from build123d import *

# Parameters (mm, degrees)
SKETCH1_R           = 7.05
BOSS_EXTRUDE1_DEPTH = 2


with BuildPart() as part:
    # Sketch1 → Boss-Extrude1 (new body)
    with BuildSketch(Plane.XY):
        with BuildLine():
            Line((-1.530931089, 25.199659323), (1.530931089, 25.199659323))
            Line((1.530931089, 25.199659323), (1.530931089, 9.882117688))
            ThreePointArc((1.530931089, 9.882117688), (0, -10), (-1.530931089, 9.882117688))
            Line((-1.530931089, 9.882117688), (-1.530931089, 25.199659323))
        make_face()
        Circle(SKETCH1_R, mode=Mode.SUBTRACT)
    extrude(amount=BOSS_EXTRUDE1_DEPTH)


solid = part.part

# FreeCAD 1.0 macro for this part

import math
import FreeCAD as App
import Part
import Sketcher
from FreeCAD import Vector
Q = App.Units.Quantity

doc = App.newDocument("Part")
body = doc.addObject("PartDesign::Body", "Body")

# Sketch on XY plane
sketch1 = body.newObject("Sketcher::SketchObject", "Sketch")
sketch1.AttachmentSupport = (doc.getObject("XY_Plane"), [""])
sketch1.MapMode = "FlatFace"
sketch1.addGeometry(Part.LineSegment(Vector(1.5, 25.2, 0), Vector(-1.5, 25.2, 0)), False)
sketch1.addGeometry(Part.LineSegment(Vector(-1.5, 25.2, 0), Vector(-1.5, 9.9, 0)), False)
sketch1.addGeometry(Part.ArcOfCircle(Part.Circle(Vector(0, 0, 0), Vector(0, 0, 1), 10), math.radians(99), math.radians(441)), False)
sketch1.addGeometry(Part.LineSegment(Vector(1.5, 9.9, 0), Vector(1.5, 25.2, 0)), False)
sketch1.addGeometry(Part.Circle(Vector(0, 0, 0), Vector(0, 0, 1), 7), False)
sketch1.addConstraint(Sketcher.Constraint("Coincident", 0, 2, 1, 1))
sketch1.addConstraint(Sketcher.Constraint("Coincident", 1, 2, 2, 1))
sketch1.addConstraint(Sketcher.Constraint("Coincident", 2, 2, 3, 1))
sketch1.addConstraint(Sketcher.Constraint("Coincident", 3, 2, 0, 1))
sketch1.addConstraint(Sketcher.Constraint("Horizontal", 0))
sketch1.addConstraint(Sketcher.Constraint("Vertical", 1))
sketch1.addConstraint(Sketcher.Constraint("Vertical", 3))
sketch1.addConstraint(Sketcher.Constraint("Coincident", 2, 3, -1, 1))
sketch1.addConstraint(Sketcher.Constraint("Coincident", 4, 3, -1, 1))
sketch1.addConstraint(Sketcher.Constraint("Horizontal", 1, 2, 2, 2))
sketch1.addConstraint(Sketcher.Constraint("Radius", 2, Q("10 mm")))
sketch1.addConstraint(Sketcher.Constraint("Diameter", 4, Q("14.1 mm")))
sketch1.addConstraint(Sketcher.Constraint("DistanceY", 1, 2, 1, 1, Q("15.317542 mm")))
sketch1.addConstraint(Sketcher.Constraint("DistanceX", 0, 2, 0, 1, Q("3.061862 mm")))
pad1 = body.newObject("PartDesign::Pad", "Pad")
pad1.Profile = sketch1
pad1.Length = 2

doc.recompute()
